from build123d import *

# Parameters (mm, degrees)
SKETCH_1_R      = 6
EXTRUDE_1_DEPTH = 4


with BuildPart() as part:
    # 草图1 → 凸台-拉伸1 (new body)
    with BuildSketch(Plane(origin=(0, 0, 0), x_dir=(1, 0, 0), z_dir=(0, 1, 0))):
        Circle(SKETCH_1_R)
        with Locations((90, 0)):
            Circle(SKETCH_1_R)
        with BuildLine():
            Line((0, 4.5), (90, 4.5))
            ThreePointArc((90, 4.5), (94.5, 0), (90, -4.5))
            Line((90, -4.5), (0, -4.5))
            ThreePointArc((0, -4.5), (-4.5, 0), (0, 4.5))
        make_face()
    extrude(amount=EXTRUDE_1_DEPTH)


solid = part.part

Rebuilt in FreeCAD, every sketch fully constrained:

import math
import FreeCAD as App
import Part
import Sketcher
Q = App.Units.Quantity

doc = App.newDocument("Part")
params = doc.addObject("Spreadsheet::Sheet", "Params")
for row, (alias, value) in enumerate([
    ("sketch1_radius", "6 mm"),
    ("pad1_length", "4 mm"),
], start=1):
    params.set(f"A{row}", alias)
    params.set(f"B{row}", "=" + value)
    params.setAlias(f"B{row}", alias)

body = doc.addObject("PartDesign::Body", "Body")

# Sketch on XZ plane
sketch1 = body.newObject("Sketcher::SketchObject", "Sketch")
sketch1.AttachmentSupport = (doc.getObject("XZ_Plane"), [""])
sketch1.MapMode = "FlatFace"
sketch1.addGeometry(Part.LineSegment(App.Vector(86, -4, 0), App.Vector(4, -4, 0)), False)
sketch1.addGeometry(Part.ArcOfCircle(Part.Circle(App.Vector(0, 0, 0), App.Vector(0, 0, 1), 6), math.radians(49), math.radians(311)), False)
sketch1.addGeometry(Part.LineSegment(App.Vector(4, 4, 0), App.Vector(86, 4, 0)), False)
sketch1.addGeometry(Part.ArcOfCircle(Part.Circle(App.Vector(90, 0, 0), App.Vector(0, 0, 1), 6), math.radians(-131), math.radians(131)), False)
sketch1.addConstraint(Sketcher.Constraint("Coincident", 0, 2, 1, 2))
sketch1.addConstraint(Sketcher.Constraint("Coincident", 1, 1, 2, 1))
sketch1.addConstraint(Sketcher.Constraint("Coincident", 2, 2, 3, 2))
sketch1.addConstraint(Sketcher.Constraint("Coincident", 3, 1, 0, 1))
sketch1.addConstraint(Sketcher.Constraint("Horizontal", 0))
sketch1.addConstraint(Sketcher.Constraint("Horizontal", 2))
sketch1.addConstraint(Sketcher.Constraint("Coincident", 1, 3, -1, 1))
sketch1.addConstraint(Sketcher.Constraint("Equal", 1, 3))
sketch1.addConstraint(Sketcher.Constraint("Symmetric", 2, 2, 3, 1, -1))
sketch1.addConstraint(Sketcher.Constraint("Radius", 1, Q("6 mm")))
sketch1.addConstraint(Sketcher.Constraint("DistanceX", -1, 1, 3, 3, Q("90 mm")))
sketch1.addConstraint(Sketcher.Constraint("DistanceY", 0, 2, 1, 1, Q("9 mm")))
sketch1.setExpression("Constraints[9]", "Params.sketch1_radius")
pad1 = body.newObject("PartDesign::Pad", "Pad")
pad1.Profile = sketch1
pad1.setExpression("Length", "Params.pad1_length")
pad1.Reversed = True

doc.recompute()
